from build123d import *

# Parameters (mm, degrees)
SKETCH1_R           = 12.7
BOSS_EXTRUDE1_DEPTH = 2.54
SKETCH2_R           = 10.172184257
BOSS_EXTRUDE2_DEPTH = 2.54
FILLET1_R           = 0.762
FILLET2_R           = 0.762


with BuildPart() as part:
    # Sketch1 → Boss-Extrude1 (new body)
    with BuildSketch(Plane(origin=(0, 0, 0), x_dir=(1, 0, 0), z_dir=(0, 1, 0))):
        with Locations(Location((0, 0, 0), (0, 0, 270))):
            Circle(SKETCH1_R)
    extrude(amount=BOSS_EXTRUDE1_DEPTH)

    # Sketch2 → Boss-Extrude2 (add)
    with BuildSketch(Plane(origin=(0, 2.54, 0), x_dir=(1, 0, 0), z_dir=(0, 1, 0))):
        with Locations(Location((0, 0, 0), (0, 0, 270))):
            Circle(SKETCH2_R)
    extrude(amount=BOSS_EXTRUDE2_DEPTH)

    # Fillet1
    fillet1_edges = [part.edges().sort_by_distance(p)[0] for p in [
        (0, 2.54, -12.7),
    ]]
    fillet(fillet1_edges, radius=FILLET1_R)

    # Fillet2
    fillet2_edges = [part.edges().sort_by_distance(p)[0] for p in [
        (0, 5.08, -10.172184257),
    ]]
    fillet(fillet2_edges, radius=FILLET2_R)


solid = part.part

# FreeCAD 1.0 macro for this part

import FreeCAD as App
import Part
import Sketcher
Q = App.Units.Quantity


def edges_at(feature, points):
    """Names of the edges that pass closest to the given points."""
    edges = feature.Shape.Edges
    near = lambda p: min(range(len(edges)), key=lambda i: edges[i].distToShape(Part.Vertex(*p))[0])
    return sorted({f"Edge{near(p) + 1}" for p in points})

doc = App.newDocument("Part")
body = doc.addObject("PartDesign::Body", "Body")

# Sketch on XZ plane
sketch1 = body.newObject("Sketcher::SketchObject", "Sketch")
sketch1.AttachmentSupport = (doc.getObject("XZ_Plane"), [""])
sketch1.MapMode = "FlatFace"
sketch1.addGeometry(Part.Circle(App.Vector(0, 0, 0), App.Vector(0, 0, 1), 13), False)
sketch1.addConstraint(Sketcher.Constraint("Coincident", 0, 3, -1, 1))
sketch1.addConstraint(Sketcher.Constraint("Diameter", 0, Q("1 in")))
pad1 = body.newObject("PartDesign::Pad", "Pad")
pad1.Profile = sketch1
pad1.Length = Q("0.1 in")
pad1.Reversed = True

# Sketch on XZ plane
sketch2 = body.newObject("Sketcher::SketchObject", "Sketch001")
sketch2.AttachmentSupport = (doc.getObject("XZ_Plane"), [""])
sketch2.MapMode = "FlatFace"
sketch2.AttachmentOffset = App.Placement(App.Vector(0, 0, -0.1 * 25.4), App.Rotation())
sketch2.addGeometry(Part.Circle(App.Vector(0, 0, 0), App.Vector(0, 0, 1), 10), False)
sketch2.addConstraint(Sketcher.Constraint("Coincident", 0, 3, -1, 1))
sketch2.addConstraint(Sketcher.Constraint("Diameter", 0, Q("20.344369 mm")))
pad2 = body.newObject("PartDesign::Pad", "Pad001")
pad2.Profile = sketch2
pad2.Length = Q("0.1 in")
pad2.Reversed = True
doc.recompute()

fillet = body.newObject("PartDesign::Fillet", "Fillet")
fillet.Base = (pad2, edges_at(pad2, [(0, 2.54, -12.7)]))
fillet.Radius = Q("0.03 in")
doc.recompute()

fillet2 = body.newObject("PartDesign::Fillet", "Fillet001")
fillet2.Base = (fillet, edges_at(fillet, [(0, 5.08, -10.172)]))
fillet2.Radius = Q("0.03 in")

doc.recompute()
